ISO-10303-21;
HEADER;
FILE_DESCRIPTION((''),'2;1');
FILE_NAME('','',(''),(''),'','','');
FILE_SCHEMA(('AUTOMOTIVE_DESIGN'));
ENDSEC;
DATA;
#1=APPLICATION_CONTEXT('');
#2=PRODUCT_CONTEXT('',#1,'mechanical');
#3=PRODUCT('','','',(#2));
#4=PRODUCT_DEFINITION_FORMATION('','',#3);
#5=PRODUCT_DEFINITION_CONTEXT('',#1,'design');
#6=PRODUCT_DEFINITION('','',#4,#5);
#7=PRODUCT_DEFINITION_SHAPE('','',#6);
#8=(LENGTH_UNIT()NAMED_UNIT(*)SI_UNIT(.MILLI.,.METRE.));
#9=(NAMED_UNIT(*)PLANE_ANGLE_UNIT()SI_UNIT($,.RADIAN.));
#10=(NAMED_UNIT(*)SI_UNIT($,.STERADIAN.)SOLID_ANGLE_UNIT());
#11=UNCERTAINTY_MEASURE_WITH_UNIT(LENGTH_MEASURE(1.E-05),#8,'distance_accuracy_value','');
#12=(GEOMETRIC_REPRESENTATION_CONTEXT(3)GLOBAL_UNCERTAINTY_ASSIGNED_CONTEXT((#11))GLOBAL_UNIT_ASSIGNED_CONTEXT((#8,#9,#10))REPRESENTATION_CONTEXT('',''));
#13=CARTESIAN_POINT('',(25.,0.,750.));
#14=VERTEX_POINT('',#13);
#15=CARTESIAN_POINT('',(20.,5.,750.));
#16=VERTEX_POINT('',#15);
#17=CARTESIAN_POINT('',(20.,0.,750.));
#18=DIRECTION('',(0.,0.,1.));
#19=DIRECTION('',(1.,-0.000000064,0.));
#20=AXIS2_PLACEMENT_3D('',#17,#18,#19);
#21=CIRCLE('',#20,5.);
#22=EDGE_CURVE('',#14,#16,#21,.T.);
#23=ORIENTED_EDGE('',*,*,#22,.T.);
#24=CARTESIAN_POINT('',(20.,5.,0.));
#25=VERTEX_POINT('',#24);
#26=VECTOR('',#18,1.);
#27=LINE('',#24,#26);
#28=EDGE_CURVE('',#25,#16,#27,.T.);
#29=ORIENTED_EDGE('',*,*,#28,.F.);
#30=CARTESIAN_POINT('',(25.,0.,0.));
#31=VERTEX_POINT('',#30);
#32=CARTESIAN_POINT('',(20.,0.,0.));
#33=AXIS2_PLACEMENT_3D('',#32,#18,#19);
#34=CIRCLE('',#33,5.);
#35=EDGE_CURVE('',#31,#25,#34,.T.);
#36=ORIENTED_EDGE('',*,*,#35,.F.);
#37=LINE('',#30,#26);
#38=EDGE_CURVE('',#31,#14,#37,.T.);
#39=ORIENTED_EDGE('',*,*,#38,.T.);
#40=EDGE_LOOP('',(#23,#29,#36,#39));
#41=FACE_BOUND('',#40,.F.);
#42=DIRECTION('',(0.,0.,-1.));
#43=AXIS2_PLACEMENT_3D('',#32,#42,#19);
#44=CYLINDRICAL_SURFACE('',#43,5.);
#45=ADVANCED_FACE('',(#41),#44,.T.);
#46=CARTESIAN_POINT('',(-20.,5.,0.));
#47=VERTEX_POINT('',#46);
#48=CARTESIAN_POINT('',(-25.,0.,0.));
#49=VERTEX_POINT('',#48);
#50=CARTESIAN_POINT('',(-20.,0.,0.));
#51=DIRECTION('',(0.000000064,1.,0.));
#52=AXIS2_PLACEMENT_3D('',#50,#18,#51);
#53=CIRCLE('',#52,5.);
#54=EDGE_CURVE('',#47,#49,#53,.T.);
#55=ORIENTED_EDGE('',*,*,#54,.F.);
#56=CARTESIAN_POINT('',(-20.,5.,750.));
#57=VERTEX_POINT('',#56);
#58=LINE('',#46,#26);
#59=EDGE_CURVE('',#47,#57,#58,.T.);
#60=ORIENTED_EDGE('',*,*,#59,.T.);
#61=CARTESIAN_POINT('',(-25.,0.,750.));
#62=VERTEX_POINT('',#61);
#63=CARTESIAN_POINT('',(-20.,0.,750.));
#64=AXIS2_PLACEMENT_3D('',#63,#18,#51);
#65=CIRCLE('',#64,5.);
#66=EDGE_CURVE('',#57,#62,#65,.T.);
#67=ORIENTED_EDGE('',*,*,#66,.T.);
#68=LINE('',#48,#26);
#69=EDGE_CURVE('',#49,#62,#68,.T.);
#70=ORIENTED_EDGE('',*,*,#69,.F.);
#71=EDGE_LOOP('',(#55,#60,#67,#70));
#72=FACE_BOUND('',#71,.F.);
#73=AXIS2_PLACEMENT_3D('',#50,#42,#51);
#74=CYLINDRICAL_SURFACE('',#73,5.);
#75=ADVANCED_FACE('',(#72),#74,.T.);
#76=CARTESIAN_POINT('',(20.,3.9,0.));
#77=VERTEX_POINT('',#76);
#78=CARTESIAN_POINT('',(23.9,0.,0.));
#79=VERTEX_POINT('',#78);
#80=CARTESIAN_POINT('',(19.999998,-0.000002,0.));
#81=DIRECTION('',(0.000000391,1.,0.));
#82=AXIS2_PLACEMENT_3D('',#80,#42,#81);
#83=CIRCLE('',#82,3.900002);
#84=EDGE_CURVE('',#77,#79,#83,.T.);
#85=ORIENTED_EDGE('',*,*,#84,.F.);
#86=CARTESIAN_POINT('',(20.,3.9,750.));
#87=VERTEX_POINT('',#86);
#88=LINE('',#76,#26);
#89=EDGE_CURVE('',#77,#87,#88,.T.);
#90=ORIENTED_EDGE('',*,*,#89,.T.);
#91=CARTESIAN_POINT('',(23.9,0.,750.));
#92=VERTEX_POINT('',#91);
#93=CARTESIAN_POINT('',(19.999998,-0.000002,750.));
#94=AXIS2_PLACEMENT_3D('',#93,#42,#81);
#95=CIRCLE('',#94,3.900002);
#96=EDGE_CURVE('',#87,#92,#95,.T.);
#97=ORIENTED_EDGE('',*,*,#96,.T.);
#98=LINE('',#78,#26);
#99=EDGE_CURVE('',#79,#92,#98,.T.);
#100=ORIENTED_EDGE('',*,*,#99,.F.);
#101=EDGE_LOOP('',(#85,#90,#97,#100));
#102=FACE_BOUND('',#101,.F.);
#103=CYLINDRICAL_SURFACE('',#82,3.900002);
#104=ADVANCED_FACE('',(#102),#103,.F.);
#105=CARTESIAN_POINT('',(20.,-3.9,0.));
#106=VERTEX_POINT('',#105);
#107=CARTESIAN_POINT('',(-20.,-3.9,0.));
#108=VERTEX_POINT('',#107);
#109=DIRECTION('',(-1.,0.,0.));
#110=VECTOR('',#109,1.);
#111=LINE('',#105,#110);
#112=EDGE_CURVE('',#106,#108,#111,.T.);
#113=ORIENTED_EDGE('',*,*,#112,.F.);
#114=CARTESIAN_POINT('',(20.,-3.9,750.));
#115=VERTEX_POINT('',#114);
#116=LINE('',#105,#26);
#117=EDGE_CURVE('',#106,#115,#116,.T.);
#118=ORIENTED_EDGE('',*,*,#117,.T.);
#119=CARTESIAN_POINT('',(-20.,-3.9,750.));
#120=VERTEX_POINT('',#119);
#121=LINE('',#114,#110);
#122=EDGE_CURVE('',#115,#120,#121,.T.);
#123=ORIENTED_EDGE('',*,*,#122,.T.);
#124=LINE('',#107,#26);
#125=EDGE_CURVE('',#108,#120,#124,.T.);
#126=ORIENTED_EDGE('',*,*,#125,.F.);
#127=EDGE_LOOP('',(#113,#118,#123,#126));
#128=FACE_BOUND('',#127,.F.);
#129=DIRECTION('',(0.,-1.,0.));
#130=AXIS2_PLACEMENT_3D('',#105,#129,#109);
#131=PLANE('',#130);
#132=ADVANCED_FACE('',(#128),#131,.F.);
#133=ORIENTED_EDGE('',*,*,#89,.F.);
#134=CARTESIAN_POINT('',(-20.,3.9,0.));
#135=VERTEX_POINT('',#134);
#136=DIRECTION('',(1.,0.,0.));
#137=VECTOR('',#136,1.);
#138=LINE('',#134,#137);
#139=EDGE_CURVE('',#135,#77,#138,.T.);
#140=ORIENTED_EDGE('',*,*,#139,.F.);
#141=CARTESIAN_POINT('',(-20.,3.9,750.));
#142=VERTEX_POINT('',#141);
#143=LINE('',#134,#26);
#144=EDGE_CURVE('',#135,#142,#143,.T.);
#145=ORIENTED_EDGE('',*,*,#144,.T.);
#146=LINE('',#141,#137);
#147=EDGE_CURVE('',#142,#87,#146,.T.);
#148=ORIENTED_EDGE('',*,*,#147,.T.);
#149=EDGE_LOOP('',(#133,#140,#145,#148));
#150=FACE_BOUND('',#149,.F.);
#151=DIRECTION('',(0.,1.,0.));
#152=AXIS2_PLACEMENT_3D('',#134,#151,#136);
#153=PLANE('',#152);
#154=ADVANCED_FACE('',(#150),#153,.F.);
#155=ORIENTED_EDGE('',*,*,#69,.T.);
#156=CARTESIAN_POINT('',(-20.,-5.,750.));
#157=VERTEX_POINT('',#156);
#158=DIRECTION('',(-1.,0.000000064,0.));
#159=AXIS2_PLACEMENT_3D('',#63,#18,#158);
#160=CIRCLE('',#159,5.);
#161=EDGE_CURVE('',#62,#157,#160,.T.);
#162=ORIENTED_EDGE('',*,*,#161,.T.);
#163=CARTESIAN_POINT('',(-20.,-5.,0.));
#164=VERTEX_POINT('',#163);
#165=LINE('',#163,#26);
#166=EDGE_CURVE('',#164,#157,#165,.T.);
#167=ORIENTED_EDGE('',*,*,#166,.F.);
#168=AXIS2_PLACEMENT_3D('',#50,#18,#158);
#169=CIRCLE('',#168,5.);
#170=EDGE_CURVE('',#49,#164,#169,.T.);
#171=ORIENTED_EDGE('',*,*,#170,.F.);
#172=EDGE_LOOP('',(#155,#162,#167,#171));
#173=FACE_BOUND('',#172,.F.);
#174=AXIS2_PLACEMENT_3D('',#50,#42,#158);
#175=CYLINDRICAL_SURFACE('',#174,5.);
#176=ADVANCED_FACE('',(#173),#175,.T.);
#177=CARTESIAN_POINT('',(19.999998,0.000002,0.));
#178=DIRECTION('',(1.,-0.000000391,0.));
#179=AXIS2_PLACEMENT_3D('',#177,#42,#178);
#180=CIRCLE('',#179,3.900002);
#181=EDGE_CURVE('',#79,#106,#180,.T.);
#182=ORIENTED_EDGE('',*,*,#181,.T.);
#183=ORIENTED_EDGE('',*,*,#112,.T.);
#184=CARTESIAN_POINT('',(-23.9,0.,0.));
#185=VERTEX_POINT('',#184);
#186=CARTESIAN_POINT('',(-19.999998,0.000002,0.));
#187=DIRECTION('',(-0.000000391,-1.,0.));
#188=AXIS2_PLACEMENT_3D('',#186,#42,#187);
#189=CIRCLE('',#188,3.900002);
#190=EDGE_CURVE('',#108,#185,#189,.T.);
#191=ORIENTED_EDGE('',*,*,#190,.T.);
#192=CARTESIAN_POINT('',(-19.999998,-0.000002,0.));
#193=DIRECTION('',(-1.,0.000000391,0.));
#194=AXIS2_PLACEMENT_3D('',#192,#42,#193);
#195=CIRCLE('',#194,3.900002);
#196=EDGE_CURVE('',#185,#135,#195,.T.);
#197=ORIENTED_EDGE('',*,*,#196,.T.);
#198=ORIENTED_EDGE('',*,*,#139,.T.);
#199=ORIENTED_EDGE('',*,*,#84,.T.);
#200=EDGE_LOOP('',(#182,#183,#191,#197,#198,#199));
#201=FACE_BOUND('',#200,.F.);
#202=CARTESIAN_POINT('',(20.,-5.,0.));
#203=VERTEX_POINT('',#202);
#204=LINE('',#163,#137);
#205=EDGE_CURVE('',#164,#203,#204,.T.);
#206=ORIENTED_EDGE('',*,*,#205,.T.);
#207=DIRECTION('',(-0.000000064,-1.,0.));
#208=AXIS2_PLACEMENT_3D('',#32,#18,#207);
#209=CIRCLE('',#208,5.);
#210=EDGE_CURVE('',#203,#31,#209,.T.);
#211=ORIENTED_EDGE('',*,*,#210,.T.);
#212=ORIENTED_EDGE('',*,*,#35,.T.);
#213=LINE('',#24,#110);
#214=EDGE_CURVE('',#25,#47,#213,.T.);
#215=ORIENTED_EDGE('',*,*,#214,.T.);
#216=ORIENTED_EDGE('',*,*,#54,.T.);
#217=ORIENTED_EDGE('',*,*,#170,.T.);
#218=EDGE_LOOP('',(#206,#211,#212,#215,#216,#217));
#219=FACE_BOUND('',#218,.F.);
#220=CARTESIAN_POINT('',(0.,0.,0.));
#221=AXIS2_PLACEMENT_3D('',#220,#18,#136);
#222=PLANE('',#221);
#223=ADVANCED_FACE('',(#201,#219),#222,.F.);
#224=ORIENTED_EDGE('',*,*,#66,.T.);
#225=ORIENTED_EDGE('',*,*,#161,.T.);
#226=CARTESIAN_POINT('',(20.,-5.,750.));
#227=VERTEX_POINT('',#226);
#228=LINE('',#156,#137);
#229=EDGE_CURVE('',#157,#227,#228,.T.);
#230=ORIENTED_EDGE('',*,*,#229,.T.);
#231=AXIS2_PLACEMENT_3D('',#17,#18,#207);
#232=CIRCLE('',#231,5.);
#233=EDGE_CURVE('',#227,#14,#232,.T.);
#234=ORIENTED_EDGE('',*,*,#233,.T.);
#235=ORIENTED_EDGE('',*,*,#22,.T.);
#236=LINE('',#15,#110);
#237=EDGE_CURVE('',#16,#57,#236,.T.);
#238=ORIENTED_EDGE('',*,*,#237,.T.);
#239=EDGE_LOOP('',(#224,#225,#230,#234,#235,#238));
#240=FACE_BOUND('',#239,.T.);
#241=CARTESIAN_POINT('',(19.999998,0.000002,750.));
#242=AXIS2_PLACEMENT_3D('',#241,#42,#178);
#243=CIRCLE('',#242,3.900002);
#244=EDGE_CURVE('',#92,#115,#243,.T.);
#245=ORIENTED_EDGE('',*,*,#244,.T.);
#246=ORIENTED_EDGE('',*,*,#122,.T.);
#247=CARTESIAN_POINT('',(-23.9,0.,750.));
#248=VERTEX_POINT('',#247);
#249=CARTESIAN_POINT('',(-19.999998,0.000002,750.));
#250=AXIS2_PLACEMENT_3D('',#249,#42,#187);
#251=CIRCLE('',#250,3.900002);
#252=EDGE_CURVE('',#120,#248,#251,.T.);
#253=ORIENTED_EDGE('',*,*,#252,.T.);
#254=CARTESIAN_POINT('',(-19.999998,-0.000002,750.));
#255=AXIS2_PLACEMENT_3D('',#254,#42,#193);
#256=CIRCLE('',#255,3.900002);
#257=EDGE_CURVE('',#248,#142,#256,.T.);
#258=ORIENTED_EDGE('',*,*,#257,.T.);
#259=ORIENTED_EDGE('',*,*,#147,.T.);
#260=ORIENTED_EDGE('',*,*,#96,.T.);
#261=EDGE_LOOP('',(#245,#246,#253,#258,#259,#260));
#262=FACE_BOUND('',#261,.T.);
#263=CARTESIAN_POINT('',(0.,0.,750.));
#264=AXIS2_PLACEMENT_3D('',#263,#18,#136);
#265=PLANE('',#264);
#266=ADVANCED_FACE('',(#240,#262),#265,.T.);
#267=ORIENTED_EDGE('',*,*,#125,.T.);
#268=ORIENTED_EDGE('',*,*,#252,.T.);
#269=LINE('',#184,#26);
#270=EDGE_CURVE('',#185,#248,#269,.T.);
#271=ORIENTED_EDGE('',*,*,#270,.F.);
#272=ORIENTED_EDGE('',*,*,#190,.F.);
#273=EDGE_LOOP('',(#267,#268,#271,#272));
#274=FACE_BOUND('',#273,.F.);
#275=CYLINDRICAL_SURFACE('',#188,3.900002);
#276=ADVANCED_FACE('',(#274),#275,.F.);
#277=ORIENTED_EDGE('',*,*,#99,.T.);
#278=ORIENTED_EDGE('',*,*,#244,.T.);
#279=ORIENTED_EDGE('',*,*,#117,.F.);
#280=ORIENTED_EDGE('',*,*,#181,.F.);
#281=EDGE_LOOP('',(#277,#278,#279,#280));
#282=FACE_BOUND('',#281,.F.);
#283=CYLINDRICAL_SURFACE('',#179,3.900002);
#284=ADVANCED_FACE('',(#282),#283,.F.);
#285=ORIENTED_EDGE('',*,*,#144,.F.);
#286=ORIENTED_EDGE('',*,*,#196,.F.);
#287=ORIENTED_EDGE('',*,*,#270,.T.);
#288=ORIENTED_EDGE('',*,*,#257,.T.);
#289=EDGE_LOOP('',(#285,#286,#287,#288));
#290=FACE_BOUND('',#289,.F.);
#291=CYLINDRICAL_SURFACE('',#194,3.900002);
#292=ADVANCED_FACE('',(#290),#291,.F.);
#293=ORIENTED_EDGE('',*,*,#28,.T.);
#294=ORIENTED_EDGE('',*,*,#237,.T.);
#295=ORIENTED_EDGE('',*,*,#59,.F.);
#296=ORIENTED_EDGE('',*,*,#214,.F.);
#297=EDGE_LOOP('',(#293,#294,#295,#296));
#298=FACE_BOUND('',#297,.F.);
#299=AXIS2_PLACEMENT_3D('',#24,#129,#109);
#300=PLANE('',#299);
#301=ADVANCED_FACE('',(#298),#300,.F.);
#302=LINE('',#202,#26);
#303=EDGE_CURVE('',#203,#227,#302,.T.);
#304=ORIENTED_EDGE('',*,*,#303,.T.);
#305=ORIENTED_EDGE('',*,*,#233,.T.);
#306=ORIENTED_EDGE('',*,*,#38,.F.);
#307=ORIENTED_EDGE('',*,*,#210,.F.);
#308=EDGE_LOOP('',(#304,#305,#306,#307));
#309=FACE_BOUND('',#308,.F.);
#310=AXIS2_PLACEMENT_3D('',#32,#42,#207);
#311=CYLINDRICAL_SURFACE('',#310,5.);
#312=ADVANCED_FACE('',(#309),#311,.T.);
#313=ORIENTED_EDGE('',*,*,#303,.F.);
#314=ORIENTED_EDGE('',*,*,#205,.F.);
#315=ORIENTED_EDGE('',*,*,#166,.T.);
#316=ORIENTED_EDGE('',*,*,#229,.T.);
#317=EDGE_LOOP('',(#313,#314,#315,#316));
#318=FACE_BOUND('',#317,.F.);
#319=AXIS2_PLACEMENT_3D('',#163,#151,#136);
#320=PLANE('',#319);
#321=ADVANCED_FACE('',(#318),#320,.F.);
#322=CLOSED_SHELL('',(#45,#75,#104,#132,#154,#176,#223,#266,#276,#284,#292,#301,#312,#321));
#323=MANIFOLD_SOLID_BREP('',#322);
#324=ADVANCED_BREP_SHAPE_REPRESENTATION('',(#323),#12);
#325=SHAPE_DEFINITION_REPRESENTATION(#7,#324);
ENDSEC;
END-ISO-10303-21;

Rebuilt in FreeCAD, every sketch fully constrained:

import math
import FreeCAD as App
import Part
import Sketcher
Q = App.Units.Quantity

doc = App.newDocument("Part")
params = doc.addObject("Spreadsheet::Sheet", "Params")
for row, (alias, value) in enumerate([
    ("sketch1_radius", "5 mm"),
    ("sketch1_radius2", "3.900002 mm"),
    ("sketch1_width", "40 mm"),
    ("pad1_length", "750 mm"),
], start=1):
    params.set(f"A{row}", alias)
    params.set(f"B{row}", "=" + value)
    params.setAlias(f"B{row}", alias)

body = doc.addObject("PartDesign::Body", "Body")

sketch1 = body.newObject("Sketcher::SketchObject", "Sketch")
sketch1.AttachmentSupport = (doc.getObject("XY_Plane"), [""])
sketch1.MapMode = "FlatFace"
sketch1.addGeometry(Part.LineSegment(App.Vector(20, 5, 0), App.Vector(-20, 5, 0)), False)
sketch1.addGeometry(Part.ArcOfCircle(Part.Circle(App.Vector(-20, 0, 0), App.Vector(0, 0, 1), 5), math.radians(90), math.radians(180)), False)
sketch1.addGeometry(Part.ArcOfCircle(Part.Circle(App.Vector(-20, 0, 0), App.Vector(0, 0, 1), 5), math.radians(180), math.radians(270)), False)
sketch1.addGeometry(Part.LineSegment(App.Vector(-20, -5, 0), App.Vector(20, -5, 0)), False)
sketch1.addGeometry(Part.ArcOfCircle(Part.Circle(App.Vector(20, 0, 0), App.Vector(0, 0, 1), 5), math.radians(-90), math.radians(0)), False)
sketch1.addGeometry(Part.ArcOfCircle(Part.Circle(App.Vector(20, 0, 0), App.Vector(0, 0, 1), 5), math.radians(0), math.radians(90)), False)
sketch1.addGeometry(Part.ArcOfCircle(Part.Circle(App.Vector(-20, 0, 0), App.Vector(0, 0, 1), 3.9), math.radians(-180), math.radians(-90)), False)
sketch1.addGeometry(Part.ArcOfCircle(Part.Circle(App.Vector(-20, 0, 0), App.Vector(0, 0, 1), 3.9), math.radians(90), math.radians(180)), False)
sketch1.addGeometry(Part.LineSegment(App.Vector(-20, 3.9, 0), App.Vector(20, 3.9, 0)), False)
sketch1.addGeometry(Part.ArcOfCircle(Part.Circle(App.Vector(20, 0, 0), App.Vector(0, 0, 1), 3.9), math.radians(0), math.radians(90)), False)
sketch1.addGeometry(Part.ArcOfCircle(Part.Circle(App.Vector(20, 0, 0), App.Vector(0, 0, 1), 3.9), math.radians(-90), math.radians(0)), False)
sketch1.addGeometry(Part.LineSegment(App.Vector(20, -3.9, 0), App.Vector(-20, -3.9, 0)), False)
sketch1.addConstraint(Sketcher.Constraint("Tangent", 0, 2, 1, 1))
sketch1.addConstraint(Sketcher.Constraint("Tangent", 1, 2, 2, 1))
sketch1.addConstraint(Sketcher.Constraint("Tangent", 2, 2, 3, 1))
sketch1.addConstraint(Sketcher.Constraint("Tangent", 3, 2, 4, 1))
sketch1.addConstraint(Sketcher.Constraint("Tangent", 4, 2, 5, 1))
sketch1.addConstraint(Sketcher.Constraint("Tangent", 5, 2, 0, 1))
sketch1.addConstraint(Sketcher.Constraint("Tangent", 6, 1, 7, 2))
sketch1.addConstraint(Sketcher.Constraint("Tangent", 7, 1, 8, 1))
sketch1.addConstraint(Sketcher.Constraint("Tangent", 8, 2, 9, 2))
sketch1.addConstraint(Sketcher.Constraint("Tangent", 9, 1, 10, 2))
sketch1.addConstraint(Sketcher.Constraint("Tangent", 10, 1, 11, 1))
sketch1.addConstraint(Sketcher.Constraint("Tangent", 11, 2, 6, 2))
sketch1.addConstraint(Sketcher.Constraint("Horizontal", 0))
sketch1.addConstraint(Sketcher.Constraint("Horizontal", 3))
sketch1.addConstraint(Sketcher.Constraint("Horizontal", 8))
sketch1.addConstraint(Sketcher.Constraint("Horizontal", 11))
sketch1.addConstraint(Sketcher.Constraint("Coincident", 6, 3, 1, 3))
sketch1.addConstraint(Sketcher.Constraint("Coincident", 9, 3, 4, 3))
sketch1.addConstraint(Sketcher.Constraint("Equal", 1, 2))
sketch1.addConstraint(Sketcher.Constraint("Equal", 2, 4))
sketch1.addConstraint(Sketcher.Constraint("Equal", 6, 7))
sketch1.addConstraint(Sketcher.Constraint("Symmetric", 1, 3, 4, 3, -1, 1))
sketch1.addConstraint(Sketcher.Constraint("PointOnObject", 1, 2, -1))
sketch1.addConstraint(Sketcher.Constraint("PointOnObject", 4, 2, -1))
sketch1.addConstraint(Sketcher.Constraint("PointOnObject", 6, 1, -1))
sketch1.addConstraint(Sketcher.Constraint("PointOnObject", 9, 1, -1))
sketch1.addConstraint(Sketcher.Constraint("Radius", 1, Q("5 mm")))
sketch1.addConstraint(Sketcher.Constraint("Radius", 6, Q("3.900002 mm")))
sketch1.addConstraint(Sketcher.Constraint("DistanceX", 0, 2, 0, 1, Q("40 mm")))
sketch1.setExpression("Constraints[26]", "Params.sketch1_radius")
sketch1.setExpression("Constraints[27]", "Params.sketch1_radius2")
sketch1.setExpression("Constraints[28]", "Params.sketch1_width")
pad1 = body.newObject("PartDesign::Pad", "Pad")
pad1.Profile = sketch1
pad1.setExpression("Length", "Params.pad1_length")

doc.recompute()
